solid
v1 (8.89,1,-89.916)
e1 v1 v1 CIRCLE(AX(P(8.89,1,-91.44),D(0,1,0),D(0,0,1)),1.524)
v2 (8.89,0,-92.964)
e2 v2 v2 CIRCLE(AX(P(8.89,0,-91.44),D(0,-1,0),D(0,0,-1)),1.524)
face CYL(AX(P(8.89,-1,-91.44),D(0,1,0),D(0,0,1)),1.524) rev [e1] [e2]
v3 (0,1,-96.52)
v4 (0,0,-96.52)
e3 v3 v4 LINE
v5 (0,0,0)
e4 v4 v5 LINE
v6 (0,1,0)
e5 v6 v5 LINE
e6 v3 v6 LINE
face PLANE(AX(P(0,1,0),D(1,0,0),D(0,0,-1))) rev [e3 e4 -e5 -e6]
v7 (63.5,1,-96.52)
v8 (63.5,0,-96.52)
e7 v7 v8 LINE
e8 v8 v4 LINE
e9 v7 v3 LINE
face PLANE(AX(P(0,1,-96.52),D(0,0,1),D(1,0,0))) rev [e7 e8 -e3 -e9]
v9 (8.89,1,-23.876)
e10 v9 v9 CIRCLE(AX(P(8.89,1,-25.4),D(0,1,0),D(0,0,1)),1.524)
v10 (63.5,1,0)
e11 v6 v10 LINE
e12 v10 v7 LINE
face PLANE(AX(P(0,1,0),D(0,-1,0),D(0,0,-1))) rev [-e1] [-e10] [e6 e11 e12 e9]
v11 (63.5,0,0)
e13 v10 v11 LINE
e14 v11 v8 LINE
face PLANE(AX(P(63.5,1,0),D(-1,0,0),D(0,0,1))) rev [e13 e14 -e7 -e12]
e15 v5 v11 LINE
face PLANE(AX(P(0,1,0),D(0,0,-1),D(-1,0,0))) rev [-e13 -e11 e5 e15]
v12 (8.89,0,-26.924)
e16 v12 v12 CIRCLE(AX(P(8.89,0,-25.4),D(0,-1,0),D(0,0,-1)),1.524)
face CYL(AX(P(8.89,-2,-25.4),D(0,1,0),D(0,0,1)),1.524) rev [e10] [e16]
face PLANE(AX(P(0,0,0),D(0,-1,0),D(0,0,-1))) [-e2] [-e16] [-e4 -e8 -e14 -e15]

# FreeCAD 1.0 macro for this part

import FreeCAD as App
import Part
import Sketcher


def add_polygon(sketch, points):
    """Adds a closed chain of lines whose ends are joined by coincident constraints."""
    first, n = sketch.GeometryCount, len(points)
    for a, b in zip(points, points[1:] + points[:1]):
        sketch.addGeometry(Part.LineSegment(App.Vector(*a, 0), App.Vector(*b, 0)), False)
    for i in range(n):
        sketch.addConstraint(Sketcher.Constraint("Coincident", first + i, 2, first + (i + 1) % n, 1))

doc = App.newDocument("Part")
params = doc.addObject("Spreadsheet::Sheet", "Params")
for row, (alias, value) in enumerate([
    ("sketch1_width", "63.5 mm"),
    ("sketch1_height", "96.52 mm"),
    ("pad1_length", "1 mm"),
    ("pocket1_length", "2 mm"),
    ("pocket2_length", "3 mm"),
], start=1):
    params.set(f"A{row}", alias)
    params.set(f"B{row}", "=" + value)
    params.setAlias(f"B{row}", alias)

body = doc.addObject("PartDesign::Body", "Body")

sketch1 = body.newObject("Sketcher::SketchObject", "Sketch")
sketch1.AttachmentSupport = (doc.getObject("XZ_Plane"), [""])
sketch1.MapMode = "FlatFace"
add_polygon(sketch1, [(0, -97), (0, 0), (64, 0), (64, -97)])
sketch1.addConstraint([
    Sketcher.Constraint("Vertical", 0),
    Sketcher.Constraint("Horizontal", 1),
    Sketcher.Constraint("Vertical", 2),
    Sketcher.Constraint("Horizontal", 3),
    Sketcher.Constraint("Coincident", 0, 2, -1, 1),
    Sketcher.Constraint("DistanceX", 1, 1, 1, 2, 63.5),
    Sketcher.Constraint("DistanceY", 0, 1, 0, 2, 96.52),
])
sketch1.setExpression("Constraints[9]", "Params.sketch1_width")
sketch1.setExpression("Constraints[10]", "Params.sketch1_height")
pad1 = body.newObject("PartDesign::Pad", "Pad")
pad1.Profile = sketch1
pad1.setExpression("Length", "Params.pad1_length")
pad1.Reversed = True

sketch2 = body.newObject("Sketcher::SketchObject", "Sketch001")
sketch2.AttachmentSupport = (doc.getObject("XZ_Plane"), [""])
sketch2.MapMode = "FlatFace"
sketch2.AttachmentOffset = App.Placement(App.Vector(0, 0, -1), App.Rotation())
sketch2.addGeometry(Part.Circle(App.Vector(8.9, -91.4, 0), App.Vector(0, 0, 1), 1.5), False)
sketch2.addConstraint([
    Sketcher.Constraint("Diameter", 0, 3.048),
    Sketcher.Constraint("DistanceX", -1, 1, 0, 3, 8.89),
    Sketcher.Constraint("DistanceY", 0, 3, -1, 1, 91.44),
])
pocket1 = body.newObject("PartDesign::Pocket", "Pocket")
pocket1.Profile = sketch2
pocket1.setExpression("Length", "Params.pocket1_length")
pocket1.Reversed = True

sketch3 = body.newObject("Sketcher::SketchObject", "Sketch002")
sketch3.AttachmentSupport = (doc.getObject("XZ_Plane"), [""])
sketch3.MapMode = "FlatFace"
sketch3.AttachmentOffset = App.Placement(App.Vector(0, 0, -1), App.Rotation())
sketch3.addGeometry(Part.Circle(App.Vector(8.9, -25.4, 0), App.Vector(0, 0, 1), 1.5), False)
sketch3.addConstraint([
    Sketcher.Constraint("Diameter", 0, 3.048),
    Sketcher.Constraint("DistanceY", 0, 3, -1, 1, 25.4),
    Sketcher.Constraint("DistanceX", -1, 1, 0, 3, 8.89),
])
pocket2 = body.newObject("PartDesign::Pocket", "Pocket001")
pocket2.Profile = sketch3
pocket2.setExpression("Length", "Params.pocket2_length")
pocket2.Reversed = True

doc.recompute()
